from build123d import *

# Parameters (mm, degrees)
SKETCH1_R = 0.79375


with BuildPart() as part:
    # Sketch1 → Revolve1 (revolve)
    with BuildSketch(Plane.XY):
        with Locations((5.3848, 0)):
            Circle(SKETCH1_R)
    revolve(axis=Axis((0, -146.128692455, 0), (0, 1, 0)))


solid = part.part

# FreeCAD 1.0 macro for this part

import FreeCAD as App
import Part
import Sketcher

V = App.Vector
Q = App.Units.Quantity

doc = App.newDocument("Part")
body = doc.addObject("PartDesign::Body", "Body")

sketch1 = body.newObject("Sketcher::SketchObject", "Sketch")
sketch1.AttachmentSupport = (doc.getObject("XY_Plane"), [""])
sketch1.MapMode = "FlatFace"
sketch1.addGeometry(Part.Circle(V(5.3848, 0, 0), V(0, 0, 1), 0.79375), False)
sketch1.addConstraint([
    Sketcher.Constraint("PointOnObject", 0, 3, -1),
    Sketcher.Constraint("Diameter", 0, Q("0.0625 in")),
    Sketcher.Constraint("DistanceX", -1, 1, 0, 3, Q("0.212 in")),
])
revolution = body.newObject("PartDesign::Revolution", "Revolution")
revolution.Profile = sketch1
revolution.ReferenceAxis = (sketch1, ["V_Axis"])
revolution.Angle = 360

doc.recompute()
